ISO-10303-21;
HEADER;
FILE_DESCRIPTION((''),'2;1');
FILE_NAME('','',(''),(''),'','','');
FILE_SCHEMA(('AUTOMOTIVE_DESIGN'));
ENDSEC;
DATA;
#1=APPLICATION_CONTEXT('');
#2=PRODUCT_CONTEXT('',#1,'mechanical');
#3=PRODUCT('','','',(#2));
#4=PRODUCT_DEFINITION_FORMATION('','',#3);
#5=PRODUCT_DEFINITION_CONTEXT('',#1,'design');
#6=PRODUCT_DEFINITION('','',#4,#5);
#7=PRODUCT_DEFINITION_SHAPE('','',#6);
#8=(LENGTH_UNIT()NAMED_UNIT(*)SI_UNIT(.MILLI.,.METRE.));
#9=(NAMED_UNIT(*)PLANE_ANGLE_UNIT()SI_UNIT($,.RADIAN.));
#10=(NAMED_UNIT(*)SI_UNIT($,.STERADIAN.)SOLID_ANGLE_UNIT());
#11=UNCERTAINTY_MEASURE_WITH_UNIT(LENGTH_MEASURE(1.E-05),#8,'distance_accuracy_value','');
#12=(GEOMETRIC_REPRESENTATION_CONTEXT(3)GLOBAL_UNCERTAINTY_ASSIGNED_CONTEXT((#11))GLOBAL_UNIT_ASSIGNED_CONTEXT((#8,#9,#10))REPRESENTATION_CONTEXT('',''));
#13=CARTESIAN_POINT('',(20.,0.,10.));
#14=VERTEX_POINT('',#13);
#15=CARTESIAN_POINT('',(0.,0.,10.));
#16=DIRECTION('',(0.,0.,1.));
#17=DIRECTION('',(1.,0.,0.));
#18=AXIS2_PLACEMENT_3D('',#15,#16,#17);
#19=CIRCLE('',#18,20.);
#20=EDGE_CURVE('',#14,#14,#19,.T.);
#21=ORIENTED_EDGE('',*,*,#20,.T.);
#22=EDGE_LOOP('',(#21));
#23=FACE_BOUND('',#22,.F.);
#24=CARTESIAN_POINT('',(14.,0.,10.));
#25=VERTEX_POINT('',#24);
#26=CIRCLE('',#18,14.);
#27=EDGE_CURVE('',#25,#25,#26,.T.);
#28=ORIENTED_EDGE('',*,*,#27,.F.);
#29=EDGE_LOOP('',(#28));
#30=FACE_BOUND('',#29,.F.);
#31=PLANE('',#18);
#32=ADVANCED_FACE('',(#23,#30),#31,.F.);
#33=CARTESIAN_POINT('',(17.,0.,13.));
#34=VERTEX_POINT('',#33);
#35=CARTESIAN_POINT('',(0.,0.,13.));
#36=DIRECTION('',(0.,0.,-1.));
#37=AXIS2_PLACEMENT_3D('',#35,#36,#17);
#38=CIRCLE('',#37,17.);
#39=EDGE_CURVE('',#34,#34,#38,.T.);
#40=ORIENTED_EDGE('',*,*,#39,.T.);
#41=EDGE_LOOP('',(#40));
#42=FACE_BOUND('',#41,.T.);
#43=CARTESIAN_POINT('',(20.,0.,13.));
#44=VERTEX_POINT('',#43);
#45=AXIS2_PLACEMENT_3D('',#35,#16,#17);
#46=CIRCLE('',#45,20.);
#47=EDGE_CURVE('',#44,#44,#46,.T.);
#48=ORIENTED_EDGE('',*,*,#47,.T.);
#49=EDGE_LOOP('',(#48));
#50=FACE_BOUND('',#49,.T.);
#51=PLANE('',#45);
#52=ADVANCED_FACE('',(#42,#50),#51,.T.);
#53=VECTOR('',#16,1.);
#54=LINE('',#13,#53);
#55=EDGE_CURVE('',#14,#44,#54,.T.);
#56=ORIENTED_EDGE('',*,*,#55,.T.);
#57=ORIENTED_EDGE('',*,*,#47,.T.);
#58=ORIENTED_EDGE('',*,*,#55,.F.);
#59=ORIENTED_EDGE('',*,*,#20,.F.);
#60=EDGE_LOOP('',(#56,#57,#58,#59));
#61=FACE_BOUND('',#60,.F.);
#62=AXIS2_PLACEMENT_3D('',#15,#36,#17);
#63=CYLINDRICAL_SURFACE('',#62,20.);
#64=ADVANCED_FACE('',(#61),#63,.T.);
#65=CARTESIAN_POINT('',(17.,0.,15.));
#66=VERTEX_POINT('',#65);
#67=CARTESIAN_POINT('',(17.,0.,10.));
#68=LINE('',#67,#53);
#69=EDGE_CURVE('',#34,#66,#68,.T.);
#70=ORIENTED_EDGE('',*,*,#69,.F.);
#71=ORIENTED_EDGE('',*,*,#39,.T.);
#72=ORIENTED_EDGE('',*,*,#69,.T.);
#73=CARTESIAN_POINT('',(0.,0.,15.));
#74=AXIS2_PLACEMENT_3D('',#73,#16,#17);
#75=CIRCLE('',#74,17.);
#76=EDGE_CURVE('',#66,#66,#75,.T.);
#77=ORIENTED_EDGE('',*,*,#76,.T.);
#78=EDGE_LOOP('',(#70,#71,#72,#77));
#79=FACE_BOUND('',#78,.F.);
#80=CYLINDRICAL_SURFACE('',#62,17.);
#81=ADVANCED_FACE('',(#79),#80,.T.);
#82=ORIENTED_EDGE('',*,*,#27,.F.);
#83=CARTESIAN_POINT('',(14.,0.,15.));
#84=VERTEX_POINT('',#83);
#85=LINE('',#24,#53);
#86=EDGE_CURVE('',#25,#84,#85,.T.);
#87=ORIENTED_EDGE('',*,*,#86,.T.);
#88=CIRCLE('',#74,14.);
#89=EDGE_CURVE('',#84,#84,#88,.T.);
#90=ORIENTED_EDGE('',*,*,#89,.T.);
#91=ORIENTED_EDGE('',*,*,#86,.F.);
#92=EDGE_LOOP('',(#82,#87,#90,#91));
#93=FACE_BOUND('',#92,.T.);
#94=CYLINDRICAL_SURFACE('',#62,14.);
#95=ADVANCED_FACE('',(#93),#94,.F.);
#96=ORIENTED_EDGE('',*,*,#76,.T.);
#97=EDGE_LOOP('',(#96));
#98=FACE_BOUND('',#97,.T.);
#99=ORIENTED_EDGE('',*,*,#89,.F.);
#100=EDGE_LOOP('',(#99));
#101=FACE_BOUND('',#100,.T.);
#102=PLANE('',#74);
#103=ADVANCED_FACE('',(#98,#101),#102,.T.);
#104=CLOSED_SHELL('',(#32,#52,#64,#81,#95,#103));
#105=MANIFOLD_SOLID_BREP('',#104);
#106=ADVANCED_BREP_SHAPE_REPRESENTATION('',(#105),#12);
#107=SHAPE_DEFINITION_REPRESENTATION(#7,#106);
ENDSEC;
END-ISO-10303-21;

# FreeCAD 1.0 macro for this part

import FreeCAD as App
import Part
import Sketcher
from FreeCAD import Vector

doc = App.newDocument("Part")
body = doc.addObject("PartDesign::Body", "Body")

sketch1 = doc.addObject("Sketcher::SketchObject", "Sketch")
body.addObject(sketch1)
sketch1.AttachmentSupport = (doc.XY_Plane, [""])
sketch1.MapMode = "FlatFace"
sketch1.addGeometry(Part.Circle(Vector(0, 0, 0), Vector(0, 0, 1), 14), False)
sketch1.addConstraint(Sketcher.Constraint("Coincident", 0, 3, -1, 1))
sketch1.addConstraint(Sketcher.Constraint("Diameter", 0, 28.0))
pad1 = doc.addObject("PartDesign::Pad", "Pad")
body.addObject(pad1)
pad1.Profile = sketch1
pad1.Length = 5
body2 = doc.addObject("PartDesign::Body", "Body001")

sketch2 = doc.addObject("Sketcher::SketchObject", "Sketch001")
body2.addObject(sketch2)
sketch2.AttachmentSupport = (doc.getObject("XY_Plane001"), [""])
sketch2.MapMode = "FlatFace"
sketch2.addGeometry(Part.Circle(Vector(0, 0, 0), Vector(0, 0, 1), 20), False)
sketch2.addConstraint(Sketcher.Constraint("Coincident", 0, 3, -1, 1))
sketch2.addConstraint(Sketcher.Constraint("Diameter", 0, 40.0))
pad2 = doc.addObject("PartDesign::Pad", "Pad001")
body2.addObject(pad2)
pad2.Profile = sketch2
pad2.Length = 3
body3 = doc.addObject("PartDesign::Body", "Body002")

sketch3 = doc.addObject("Sketcher::SketchObject", "Sketch002")
body3.addObject(sketch3)
sketch3.AttachmentSupport = (doc.getObject("XY_Plane002"), [""])
sketch3.MapMode = "FlatFace"
sketch3.addGeometry(Part.Circle(Vector(0, 0, 0), Vector(0, 0, 1), 17), False)
sketch3.addConstraint(Sketcher.Constraint("Coincident", 0, 3, -1, 1))
sketch3.addConstraint(Sketcher.Constraint("Diameter", 0, 34.0))
pad3 = doc.addObject("PartDesign::Pad", "Pad002")
body3.addObject(pad3)
pad3.Profile = sketch3
pad3.Length = 5
doc.recompute()

boolean = doc.addObject("PartDesign::Boolean", "Boolean")
body3.addObject(boolean)
boolean.Type = "Fuse"
boolean.addObjects([body2])
doc.recompute()

boolean2 = doc.addObject("PartDesign::Boolean", "Boolean001")
body3.addObject(boolean2)
boolean2.Type = "Cut"
boolean2.addObjects([body])
body4 = doc.addObject("PartDesign::Body", "Body003")
doc.recompute()

body3.Placement = App.Placement(Vector(0, 0, 10), App.Rotation(Vector(0, 0, 1), 0))
boolean3 = doc.addObject("PartDesign::Boolean", "Boolean002")
body4.addObject(boolean3)
boolean3.Type = "Fuse"
boolean3.addObjects([body3])

doc.recompute()
